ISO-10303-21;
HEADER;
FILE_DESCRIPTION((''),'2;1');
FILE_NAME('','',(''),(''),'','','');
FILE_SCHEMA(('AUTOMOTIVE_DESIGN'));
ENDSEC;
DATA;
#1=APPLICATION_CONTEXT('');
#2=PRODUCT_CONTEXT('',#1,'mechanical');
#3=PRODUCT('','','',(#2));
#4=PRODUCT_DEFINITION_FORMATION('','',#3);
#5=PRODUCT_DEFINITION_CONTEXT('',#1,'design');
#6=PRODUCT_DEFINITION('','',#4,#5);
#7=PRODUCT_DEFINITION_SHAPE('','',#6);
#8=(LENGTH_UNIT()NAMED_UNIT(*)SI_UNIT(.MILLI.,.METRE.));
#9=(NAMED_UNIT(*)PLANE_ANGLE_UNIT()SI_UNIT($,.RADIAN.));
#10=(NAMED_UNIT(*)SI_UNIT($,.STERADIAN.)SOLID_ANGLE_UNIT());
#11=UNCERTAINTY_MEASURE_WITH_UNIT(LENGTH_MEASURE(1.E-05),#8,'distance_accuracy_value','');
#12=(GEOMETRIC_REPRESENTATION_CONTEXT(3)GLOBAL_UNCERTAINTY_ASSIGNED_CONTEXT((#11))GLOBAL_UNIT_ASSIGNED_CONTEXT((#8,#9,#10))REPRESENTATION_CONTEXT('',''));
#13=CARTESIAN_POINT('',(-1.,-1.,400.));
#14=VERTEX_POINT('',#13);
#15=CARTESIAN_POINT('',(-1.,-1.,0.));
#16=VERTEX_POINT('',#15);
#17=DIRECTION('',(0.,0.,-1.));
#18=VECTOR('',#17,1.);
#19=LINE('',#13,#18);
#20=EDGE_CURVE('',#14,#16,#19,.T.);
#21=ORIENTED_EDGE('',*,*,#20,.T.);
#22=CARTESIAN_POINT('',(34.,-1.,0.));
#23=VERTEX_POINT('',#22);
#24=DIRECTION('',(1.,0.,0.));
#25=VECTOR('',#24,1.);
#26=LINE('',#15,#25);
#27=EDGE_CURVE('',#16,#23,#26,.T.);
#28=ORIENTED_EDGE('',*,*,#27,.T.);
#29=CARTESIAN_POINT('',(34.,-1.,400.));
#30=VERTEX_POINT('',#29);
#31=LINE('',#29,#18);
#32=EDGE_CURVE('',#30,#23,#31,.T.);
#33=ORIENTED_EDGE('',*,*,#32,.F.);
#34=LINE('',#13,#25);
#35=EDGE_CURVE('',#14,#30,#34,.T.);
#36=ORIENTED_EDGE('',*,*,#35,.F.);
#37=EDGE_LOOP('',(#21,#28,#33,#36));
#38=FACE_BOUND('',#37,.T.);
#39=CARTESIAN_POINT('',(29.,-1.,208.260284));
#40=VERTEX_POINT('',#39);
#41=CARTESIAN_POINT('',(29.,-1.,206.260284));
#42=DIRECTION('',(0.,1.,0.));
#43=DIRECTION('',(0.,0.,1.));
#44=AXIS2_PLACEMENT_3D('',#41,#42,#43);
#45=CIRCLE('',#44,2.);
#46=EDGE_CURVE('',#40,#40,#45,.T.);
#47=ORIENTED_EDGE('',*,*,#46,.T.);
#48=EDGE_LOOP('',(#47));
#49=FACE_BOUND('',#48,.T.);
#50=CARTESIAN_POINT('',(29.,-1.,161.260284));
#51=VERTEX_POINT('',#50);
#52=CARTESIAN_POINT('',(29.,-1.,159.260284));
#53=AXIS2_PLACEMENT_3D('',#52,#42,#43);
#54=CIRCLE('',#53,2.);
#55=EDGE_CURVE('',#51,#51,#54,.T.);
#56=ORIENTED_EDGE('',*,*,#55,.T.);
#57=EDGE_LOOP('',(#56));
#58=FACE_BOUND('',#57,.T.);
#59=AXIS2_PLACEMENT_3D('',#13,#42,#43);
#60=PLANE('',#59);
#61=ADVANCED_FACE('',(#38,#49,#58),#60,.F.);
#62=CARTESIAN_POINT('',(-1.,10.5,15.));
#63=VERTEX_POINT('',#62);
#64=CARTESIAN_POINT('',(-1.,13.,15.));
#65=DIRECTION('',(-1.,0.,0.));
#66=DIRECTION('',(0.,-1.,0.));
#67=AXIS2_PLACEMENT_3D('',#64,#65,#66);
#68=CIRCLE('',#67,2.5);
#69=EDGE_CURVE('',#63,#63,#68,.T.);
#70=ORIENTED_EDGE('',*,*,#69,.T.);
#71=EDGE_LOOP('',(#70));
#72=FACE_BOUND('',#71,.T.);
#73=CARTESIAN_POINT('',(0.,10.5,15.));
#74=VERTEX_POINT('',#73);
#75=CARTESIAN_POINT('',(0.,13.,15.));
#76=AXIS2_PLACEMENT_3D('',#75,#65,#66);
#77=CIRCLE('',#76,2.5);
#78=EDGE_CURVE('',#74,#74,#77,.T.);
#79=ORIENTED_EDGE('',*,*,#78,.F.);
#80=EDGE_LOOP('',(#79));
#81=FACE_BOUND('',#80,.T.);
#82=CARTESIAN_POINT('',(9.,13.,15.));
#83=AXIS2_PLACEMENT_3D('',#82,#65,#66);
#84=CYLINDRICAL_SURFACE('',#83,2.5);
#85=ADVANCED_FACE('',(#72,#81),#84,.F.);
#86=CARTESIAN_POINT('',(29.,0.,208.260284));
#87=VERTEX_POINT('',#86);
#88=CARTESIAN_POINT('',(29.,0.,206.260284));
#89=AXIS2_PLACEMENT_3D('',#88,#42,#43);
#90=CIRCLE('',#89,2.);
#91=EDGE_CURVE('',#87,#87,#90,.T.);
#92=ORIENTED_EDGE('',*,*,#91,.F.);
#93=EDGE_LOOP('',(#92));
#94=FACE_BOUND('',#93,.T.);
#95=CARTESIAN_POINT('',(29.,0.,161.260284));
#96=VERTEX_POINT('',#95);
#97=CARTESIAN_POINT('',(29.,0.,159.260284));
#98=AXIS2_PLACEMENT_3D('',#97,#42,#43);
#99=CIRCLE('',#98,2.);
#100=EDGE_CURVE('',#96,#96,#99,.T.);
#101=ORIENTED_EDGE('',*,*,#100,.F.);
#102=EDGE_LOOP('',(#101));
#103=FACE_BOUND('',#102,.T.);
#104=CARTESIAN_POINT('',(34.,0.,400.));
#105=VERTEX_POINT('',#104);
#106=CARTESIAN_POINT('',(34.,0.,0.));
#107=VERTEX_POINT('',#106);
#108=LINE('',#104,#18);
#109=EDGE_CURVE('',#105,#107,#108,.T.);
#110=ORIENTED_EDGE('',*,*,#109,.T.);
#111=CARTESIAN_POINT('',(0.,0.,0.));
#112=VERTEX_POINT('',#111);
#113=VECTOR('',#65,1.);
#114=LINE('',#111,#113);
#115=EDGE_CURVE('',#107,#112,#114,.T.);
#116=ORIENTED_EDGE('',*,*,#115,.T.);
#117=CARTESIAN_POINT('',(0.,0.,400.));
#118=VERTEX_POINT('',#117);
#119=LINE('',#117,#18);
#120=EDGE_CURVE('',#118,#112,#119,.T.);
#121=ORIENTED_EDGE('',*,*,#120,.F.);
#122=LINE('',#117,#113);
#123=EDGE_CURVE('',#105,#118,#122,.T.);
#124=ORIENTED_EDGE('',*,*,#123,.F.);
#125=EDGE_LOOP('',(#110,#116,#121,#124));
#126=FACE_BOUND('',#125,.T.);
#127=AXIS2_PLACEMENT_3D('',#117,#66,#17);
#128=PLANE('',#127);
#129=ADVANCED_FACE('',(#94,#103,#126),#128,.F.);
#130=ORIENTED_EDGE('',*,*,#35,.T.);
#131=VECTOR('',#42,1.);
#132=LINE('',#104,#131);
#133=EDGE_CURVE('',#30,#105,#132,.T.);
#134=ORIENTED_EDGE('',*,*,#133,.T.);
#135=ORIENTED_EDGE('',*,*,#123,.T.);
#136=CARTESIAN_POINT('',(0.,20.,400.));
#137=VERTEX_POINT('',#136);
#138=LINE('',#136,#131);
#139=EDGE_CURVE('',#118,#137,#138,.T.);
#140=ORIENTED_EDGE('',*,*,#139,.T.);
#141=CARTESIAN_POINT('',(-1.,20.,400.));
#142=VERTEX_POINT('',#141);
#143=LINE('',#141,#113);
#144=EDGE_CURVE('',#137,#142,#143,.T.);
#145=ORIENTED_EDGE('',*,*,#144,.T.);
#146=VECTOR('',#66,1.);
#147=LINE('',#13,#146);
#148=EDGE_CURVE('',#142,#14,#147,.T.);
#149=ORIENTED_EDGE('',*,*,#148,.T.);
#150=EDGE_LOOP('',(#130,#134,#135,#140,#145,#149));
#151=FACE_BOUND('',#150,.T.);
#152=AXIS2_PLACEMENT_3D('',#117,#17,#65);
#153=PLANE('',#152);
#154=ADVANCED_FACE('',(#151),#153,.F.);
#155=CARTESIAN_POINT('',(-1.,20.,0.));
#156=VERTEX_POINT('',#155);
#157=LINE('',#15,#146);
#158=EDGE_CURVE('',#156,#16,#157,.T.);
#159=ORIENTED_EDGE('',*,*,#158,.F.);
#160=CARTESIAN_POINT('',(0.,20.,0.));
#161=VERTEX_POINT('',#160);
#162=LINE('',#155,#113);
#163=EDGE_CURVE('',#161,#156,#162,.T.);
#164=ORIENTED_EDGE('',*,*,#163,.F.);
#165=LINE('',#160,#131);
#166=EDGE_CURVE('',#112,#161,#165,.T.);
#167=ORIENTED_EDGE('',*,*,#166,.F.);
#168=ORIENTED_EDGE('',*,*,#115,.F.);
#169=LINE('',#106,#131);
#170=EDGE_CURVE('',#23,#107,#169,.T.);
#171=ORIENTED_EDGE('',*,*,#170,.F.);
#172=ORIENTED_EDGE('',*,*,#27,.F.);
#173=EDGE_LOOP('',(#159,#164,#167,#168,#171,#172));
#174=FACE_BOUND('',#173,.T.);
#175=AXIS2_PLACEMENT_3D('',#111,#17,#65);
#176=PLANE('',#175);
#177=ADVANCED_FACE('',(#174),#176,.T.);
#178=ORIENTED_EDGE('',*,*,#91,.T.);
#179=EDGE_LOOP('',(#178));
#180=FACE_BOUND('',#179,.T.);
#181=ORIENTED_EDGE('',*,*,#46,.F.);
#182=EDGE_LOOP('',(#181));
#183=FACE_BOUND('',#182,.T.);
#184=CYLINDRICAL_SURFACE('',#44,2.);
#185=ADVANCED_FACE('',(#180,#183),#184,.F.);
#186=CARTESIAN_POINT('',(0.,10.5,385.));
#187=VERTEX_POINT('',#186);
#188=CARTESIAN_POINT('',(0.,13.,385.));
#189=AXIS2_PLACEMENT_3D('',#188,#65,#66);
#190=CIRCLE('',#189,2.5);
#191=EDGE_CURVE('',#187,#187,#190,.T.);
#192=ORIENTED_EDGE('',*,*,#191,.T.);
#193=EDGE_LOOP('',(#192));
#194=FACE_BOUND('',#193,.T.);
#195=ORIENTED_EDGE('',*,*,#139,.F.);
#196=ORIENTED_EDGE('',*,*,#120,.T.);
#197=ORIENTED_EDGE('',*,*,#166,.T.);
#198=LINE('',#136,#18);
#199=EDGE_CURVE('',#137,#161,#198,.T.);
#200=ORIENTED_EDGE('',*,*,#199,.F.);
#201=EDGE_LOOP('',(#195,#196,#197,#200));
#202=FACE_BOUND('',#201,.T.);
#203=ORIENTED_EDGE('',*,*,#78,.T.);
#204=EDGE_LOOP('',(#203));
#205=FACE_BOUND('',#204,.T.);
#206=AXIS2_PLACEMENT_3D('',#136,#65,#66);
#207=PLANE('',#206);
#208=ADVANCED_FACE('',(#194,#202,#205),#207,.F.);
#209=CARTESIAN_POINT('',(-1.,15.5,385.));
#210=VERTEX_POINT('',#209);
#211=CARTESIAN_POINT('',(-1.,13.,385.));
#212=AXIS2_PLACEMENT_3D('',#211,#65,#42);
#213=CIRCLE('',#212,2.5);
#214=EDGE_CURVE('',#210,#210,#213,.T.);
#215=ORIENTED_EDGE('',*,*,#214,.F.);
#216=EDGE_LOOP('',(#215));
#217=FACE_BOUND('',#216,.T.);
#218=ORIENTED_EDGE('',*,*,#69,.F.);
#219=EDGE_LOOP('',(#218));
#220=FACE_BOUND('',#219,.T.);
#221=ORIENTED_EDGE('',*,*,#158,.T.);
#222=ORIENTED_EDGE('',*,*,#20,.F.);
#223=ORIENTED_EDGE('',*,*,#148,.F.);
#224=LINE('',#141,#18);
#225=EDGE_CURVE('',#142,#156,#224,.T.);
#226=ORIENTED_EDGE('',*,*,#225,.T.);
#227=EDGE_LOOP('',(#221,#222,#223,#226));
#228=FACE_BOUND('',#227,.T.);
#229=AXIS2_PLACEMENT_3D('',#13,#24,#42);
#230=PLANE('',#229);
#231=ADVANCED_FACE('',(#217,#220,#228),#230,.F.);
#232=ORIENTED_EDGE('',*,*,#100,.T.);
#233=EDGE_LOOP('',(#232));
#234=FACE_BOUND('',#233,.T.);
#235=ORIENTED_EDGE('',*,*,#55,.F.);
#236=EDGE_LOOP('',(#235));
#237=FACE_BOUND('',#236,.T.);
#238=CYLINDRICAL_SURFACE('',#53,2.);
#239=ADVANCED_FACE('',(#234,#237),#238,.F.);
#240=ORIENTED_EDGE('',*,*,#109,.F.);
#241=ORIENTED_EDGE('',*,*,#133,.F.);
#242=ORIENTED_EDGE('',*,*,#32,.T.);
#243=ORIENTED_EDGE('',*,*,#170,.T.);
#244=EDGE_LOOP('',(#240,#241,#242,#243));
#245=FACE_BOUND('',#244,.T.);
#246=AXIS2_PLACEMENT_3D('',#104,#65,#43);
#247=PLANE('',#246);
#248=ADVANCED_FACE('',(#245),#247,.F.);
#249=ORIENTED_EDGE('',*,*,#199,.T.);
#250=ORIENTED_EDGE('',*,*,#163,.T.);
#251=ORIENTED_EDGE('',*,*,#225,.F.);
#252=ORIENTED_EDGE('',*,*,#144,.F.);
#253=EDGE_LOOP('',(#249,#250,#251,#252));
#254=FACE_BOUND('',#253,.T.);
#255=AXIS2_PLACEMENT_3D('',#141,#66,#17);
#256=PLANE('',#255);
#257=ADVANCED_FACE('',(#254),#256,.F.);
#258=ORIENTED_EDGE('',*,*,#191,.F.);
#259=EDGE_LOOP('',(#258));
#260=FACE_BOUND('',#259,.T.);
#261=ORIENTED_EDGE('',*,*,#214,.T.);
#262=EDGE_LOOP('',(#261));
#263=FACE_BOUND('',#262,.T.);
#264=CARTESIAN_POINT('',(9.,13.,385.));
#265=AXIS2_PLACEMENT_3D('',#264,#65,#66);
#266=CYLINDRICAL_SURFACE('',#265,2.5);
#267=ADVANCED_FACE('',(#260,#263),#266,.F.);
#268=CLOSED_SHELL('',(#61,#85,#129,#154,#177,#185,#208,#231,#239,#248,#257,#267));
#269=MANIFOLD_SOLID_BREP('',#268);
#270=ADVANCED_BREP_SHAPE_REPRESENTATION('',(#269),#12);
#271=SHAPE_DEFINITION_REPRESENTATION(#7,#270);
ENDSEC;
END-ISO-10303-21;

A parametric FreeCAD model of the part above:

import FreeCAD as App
import Part
import Sketcher


def add_polygon(sketch, points):
    """Adds a closed chain of lines whose ends are joined by coincident constraints."""
    first, n = sketch.GeometryCount, len(points)
    for a, b in zip(points, points[1:] + points[:1]):
        sketch.addGeometry(Part.LineSegment(App.Vector(*a, 0), App.Vector(*b, 0)), False)
    for i in range(n):
        sketch.addConstraint(Sketcher.Constraint("Coincident", first + i, 2, first + (i + 1) % n, 1))

doc = App.newDocument("Part")
body = doc.addObject("PartDesign::Body", "Body")

sketch1 = body.newObject("Sketcher::SketchObject", "Sketch")
sketch1.AttachmentSupport = (doc.getObject("XY_Plane"), [""])
sketch1.MapMode = "FlatFace"
add_polygon(sketch1, [(-1, 20), (-1, -1), (34, -1), (34, 0), (0, 0), (0, 20)])
sketch1.addConstraint(Sketcher.Constraint("Vertical", 0))
sketch1.addConstraint(Sketcher.Constraint("Horizontal", 1))
sketch1.addConstraint(Sketcher.Constraint("Vertical", 2))
sketch1.addConstraint(Sketcher.Constraint("Horizontal", 3))
sketch1.addConstraint(Sketcher.Constraint("Vertical", 4))
sketch1.addConstraint(Sketcher.Constraint("Horizontal", 5))
sketch1.addConstraint(Sketcher.Constraint("Coincident", 3, 2, -1, 1))
sketch1.addConstraint(Sketcher.Constraint("Equal", 5, 2))
sketch1.addConstraint(Sketcher.Constraint("DistanceX", 1, 1, 1, 2, 35.0))
sketch1.addConstraint(Sketcher.Constraint("DistanceX", 3, 2, 3, 1, 34.0))
sketch1.addConstraint(Sketcher.Constraint("DistanceY", 0, 2, 0, 1, 21.0))
pad1 = body.newObject("PartDesign::Pad", "Pad")
pad1.Profile = sketch1
pad1.Length = 400

sketch2 = body.newObject("Sketcher::SketchObject", "Sketch001")
sketch2.AttachmentSupport = (doc.getObject("XZ_Plane"), [""])
sketch2.MapMode = "FlatFace"
sketch2.addGeometry(Part.Circle(App.Vector(29, 206.3, 0), App.Vector(0, 0, 1), 2), False)
sketch2.addGeometry(Part.Circle(App.Vector(29, 159.3, 0), App.Vector(0, 0, 1), 2), False)
sketch2.addConstraint(Sketcher.Constraint("Equal", 0, 1))
sketch2.addConstraint(Sketcher.Constraint("Vertical", 0, 3, 1, 3))
sketch2.addConstraint(Sketcher.Constraint("Diameter", 0, 4.0))
sketch2.addConstraint(Sketcher.Constraint("DistanceX", -1, 1, 0, 3, 29.0))
sketch2.addConstraint(Sketcher.Constraint("DistanceY", 1, 3, 0, 3, 47.0))
sketch2.addConstraint(Sketcher.Constraint("DistanceY", -1, 1, 0, 3, 206.260284))
pocket1 = body.newObject("PartDesign::Pocket", "Pocket")
pocket1.Profile = sketch2
pocket1.Type = "ThroughAll"
pocket1.Reversed = True

sketch3 = body.newObject("Sketcher::SketchObject", "Sketch002")
sketch3.AttachmentSupport = (doc.getObject("YZ_Plane"), [""])
sketch3.MapMode = "FlatFace"
sketch3.AttachmentOffset = App.Placement(App.Vector(0, 0, -1), App.Rotation())
sketch3.addGeometry(Part.Circle(App.Vector(13, 15, 0), App.Vector(0, 0, 1), 2.5), False)
sketch3.addGeometry(Part.Circle(App.Vector(13, 385, 0), App.Vector(0, 0, 1), 2.5), False)
sketch3.addConstraint(Sketcher.Constraint("Equal", 0, 1))
sketch3.addConstraint(Sketcher.Constraint("Vertical", 0, 3, 1, 3))
sketch3.addConstraint(Sketcher.Constraint("Diameter", 0, 5.0))
sketch3.addConstraint(Sketcher.Constraint("DistanceX", -1, 1, 0, 3, 13.0))
sketch3.addConstraint(Sketcher.Constraint("DistanceY", -1, 1, 0, 3, 15.0))
sketch3.addConstraint(Sketcher.Constraint("DistanceY", -1, 1, 1, 3, 385.0))
pocket2 = body.newObject("PartDesign::Pocket", "Pocket001")
pocket2.Profile = sketch3
pocket2.Length = 10
pocket2.Reversed = True

doc.recompute()
